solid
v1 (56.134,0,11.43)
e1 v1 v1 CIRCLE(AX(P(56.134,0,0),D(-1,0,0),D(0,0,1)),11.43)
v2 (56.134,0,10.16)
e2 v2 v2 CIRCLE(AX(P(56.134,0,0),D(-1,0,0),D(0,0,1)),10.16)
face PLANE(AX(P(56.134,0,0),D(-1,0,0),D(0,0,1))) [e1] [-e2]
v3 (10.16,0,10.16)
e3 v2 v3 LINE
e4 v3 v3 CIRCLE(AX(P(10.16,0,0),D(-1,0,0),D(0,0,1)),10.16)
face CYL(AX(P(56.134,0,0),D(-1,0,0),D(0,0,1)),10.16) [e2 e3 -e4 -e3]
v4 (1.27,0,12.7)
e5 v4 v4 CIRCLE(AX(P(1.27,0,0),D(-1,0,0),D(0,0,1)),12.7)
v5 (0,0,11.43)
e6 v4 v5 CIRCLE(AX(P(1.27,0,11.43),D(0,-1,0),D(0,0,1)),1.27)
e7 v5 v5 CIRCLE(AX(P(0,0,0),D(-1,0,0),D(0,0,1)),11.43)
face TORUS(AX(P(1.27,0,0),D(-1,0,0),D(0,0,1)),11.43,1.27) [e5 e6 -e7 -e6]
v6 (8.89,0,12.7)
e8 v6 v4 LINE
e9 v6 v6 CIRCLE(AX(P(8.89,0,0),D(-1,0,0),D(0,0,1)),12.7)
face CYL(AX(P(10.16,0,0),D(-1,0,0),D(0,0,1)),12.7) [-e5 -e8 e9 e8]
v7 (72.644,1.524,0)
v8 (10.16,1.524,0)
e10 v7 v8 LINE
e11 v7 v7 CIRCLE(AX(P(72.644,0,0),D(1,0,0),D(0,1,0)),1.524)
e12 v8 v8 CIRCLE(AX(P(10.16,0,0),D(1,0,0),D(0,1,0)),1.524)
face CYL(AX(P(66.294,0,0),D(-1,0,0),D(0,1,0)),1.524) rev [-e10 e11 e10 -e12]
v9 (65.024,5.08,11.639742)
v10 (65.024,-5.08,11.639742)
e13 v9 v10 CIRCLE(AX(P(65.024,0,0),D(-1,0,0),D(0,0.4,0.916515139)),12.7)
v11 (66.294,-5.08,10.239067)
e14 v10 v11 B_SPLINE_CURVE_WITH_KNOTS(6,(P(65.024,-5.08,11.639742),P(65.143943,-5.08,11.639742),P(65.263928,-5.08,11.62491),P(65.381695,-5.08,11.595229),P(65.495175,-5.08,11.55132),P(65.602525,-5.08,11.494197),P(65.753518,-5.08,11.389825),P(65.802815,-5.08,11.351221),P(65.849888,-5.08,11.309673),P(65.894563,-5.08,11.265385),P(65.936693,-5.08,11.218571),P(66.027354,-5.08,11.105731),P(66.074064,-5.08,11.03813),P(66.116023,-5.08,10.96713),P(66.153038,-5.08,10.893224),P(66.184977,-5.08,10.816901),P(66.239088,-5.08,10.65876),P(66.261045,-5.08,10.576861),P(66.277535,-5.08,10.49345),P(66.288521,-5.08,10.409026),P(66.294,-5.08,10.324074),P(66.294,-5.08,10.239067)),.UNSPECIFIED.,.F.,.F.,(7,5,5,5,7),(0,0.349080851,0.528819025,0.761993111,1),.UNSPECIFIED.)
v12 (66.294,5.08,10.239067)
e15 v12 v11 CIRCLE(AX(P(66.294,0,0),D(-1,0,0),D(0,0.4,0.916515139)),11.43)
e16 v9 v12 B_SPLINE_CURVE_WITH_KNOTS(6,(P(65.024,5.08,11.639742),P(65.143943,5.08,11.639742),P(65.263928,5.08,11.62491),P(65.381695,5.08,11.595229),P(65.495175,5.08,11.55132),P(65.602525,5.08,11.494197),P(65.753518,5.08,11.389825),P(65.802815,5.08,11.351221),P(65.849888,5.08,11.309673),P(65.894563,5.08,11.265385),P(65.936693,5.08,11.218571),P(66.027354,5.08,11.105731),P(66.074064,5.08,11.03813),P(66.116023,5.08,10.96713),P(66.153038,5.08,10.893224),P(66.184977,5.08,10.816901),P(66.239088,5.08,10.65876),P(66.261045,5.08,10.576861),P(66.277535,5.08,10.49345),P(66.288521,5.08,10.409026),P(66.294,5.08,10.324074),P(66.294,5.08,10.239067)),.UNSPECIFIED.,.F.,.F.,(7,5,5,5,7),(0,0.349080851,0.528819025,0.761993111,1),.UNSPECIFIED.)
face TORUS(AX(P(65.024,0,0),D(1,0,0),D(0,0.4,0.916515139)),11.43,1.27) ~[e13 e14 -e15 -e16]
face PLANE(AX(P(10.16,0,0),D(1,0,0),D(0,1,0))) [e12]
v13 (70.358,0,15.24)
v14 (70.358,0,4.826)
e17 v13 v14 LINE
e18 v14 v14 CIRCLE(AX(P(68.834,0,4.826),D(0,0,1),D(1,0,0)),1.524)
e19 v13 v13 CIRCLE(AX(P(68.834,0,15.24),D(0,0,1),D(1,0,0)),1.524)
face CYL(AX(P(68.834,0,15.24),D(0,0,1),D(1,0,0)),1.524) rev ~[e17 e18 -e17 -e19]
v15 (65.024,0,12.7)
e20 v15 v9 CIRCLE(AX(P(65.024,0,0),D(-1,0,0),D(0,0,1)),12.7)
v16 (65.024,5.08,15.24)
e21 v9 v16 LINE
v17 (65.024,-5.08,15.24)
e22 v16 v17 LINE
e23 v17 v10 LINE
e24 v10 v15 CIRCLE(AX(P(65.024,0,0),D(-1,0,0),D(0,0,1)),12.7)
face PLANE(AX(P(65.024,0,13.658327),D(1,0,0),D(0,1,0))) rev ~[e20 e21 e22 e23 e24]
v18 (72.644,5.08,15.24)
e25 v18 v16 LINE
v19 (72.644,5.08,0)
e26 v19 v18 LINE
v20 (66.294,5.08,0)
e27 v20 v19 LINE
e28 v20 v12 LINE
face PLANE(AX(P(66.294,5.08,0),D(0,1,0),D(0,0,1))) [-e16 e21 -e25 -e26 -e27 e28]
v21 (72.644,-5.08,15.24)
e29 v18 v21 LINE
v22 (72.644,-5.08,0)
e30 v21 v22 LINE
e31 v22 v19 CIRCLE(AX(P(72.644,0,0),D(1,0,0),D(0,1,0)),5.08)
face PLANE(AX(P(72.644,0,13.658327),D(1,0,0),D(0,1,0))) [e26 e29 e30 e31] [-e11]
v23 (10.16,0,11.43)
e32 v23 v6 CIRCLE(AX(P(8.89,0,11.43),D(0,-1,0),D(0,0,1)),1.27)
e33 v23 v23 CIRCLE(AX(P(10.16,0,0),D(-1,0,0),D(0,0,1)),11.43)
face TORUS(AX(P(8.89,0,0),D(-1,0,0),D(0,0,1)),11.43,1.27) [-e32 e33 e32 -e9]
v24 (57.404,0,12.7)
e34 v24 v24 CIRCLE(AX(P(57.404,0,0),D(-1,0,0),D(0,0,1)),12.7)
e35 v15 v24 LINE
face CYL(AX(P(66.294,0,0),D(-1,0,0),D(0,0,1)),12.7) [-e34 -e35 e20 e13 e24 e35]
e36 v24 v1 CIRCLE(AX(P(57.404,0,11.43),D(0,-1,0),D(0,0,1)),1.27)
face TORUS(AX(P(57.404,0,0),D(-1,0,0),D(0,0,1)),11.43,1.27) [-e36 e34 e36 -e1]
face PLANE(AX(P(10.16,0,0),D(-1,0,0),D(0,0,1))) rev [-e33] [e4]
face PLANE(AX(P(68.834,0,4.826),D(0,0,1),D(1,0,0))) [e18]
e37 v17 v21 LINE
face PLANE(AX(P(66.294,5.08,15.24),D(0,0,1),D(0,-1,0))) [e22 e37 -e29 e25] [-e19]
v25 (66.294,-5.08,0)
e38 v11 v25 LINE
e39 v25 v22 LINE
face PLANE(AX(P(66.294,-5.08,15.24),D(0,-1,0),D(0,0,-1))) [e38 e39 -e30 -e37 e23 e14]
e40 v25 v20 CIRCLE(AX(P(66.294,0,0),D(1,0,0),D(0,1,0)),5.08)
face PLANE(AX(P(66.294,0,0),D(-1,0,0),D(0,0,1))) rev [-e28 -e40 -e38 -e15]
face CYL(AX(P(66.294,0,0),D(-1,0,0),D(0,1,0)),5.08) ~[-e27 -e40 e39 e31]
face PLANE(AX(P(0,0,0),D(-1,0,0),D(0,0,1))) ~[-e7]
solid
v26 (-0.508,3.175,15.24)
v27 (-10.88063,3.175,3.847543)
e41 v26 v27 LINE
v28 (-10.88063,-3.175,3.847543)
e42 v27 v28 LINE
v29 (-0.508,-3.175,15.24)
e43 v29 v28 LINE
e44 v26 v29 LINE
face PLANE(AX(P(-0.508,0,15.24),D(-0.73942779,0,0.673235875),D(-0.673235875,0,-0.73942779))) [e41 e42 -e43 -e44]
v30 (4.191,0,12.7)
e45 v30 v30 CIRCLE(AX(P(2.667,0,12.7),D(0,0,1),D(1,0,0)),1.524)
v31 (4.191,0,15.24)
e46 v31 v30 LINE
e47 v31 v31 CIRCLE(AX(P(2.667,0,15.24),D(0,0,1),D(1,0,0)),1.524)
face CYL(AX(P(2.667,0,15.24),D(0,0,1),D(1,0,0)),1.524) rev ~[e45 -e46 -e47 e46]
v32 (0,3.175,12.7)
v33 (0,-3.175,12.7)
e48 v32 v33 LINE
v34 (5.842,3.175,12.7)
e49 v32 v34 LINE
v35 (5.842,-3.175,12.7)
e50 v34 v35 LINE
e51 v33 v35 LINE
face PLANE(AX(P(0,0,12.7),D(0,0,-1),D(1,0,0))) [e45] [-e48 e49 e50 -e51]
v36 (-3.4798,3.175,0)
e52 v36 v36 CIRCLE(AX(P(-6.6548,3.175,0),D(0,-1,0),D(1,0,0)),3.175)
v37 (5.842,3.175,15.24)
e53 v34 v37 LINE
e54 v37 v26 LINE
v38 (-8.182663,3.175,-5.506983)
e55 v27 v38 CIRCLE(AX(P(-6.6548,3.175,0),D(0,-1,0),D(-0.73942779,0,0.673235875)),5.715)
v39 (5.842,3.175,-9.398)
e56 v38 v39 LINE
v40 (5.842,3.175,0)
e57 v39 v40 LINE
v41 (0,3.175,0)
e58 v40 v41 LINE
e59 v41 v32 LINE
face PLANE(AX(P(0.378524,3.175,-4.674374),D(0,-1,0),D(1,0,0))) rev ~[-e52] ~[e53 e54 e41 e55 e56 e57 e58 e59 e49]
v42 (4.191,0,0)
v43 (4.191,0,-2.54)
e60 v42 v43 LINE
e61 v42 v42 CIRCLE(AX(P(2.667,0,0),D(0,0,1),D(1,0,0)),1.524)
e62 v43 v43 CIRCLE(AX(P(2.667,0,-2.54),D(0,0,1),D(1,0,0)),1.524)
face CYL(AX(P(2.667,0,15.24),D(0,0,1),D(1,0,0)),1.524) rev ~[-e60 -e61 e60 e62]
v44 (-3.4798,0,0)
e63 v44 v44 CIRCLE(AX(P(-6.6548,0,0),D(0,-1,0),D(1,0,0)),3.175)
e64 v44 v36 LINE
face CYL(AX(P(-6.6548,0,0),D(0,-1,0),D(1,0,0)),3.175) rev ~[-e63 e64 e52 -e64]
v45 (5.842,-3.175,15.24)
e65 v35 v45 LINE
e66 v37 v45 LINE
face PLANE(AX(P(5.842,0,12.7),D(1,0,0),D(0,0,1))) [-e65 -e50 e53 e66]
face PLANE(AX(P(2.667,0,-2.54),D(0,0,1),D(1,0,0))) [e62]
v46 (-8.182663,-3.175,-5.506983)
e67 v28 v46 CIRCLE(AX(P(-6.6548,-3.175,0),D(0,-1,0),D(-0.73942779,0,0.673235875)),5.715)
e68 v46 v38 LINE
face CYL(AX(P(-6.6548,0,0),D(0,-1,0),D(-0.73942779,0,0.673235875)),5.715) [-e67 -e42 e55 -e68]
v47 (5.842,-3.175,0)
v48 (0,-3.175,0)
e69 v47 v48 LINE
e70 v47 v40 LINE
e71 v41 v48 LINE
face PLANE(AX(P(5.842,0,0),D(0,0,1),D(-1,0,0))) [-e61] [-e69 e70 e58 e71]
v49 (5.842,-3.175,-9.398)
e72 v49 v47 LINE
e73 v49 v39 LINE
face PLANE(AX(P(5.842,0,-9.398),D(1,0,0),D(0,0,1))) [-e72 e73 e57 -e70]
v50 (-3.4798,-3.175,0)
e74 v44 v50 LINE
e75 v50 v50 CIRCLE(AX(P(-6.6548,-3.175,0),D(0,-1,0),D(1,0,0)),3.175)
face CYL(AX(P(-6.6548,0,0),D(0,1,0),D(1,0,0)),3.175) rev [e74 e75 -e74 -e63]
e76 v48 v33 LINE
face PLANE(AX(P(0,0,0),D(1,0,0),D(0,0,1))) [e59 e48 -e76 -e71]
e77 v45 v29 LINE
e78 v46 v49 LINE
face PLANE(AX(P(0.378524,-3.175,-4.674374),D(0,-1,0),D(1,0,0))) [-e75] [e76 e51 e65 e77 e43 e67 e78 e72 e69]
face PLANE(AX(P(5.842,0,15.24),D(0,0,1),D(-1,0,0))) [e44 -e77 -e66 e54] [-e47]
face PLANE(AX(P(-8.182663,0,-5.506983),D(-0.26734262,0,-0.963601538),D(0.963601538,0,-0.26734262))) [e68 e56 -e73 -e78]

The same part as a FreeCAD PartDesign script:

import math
import FreeCAD as App
import Part
import Sketcher
Q = App.Units.Quantity


def edges_at(feature, points):
    """Names of the edges that pass closest to the given points."""
    edges = feature.Shape.Edges
    near = lambda p: min(range(len(edges)), key=lambda i: edges[i].distToShape(Part.Vertex(*p))[0])
    return sorted({f"Edge{near(p) + 1}" for p in points})


def add_polygon(sketch, points):
    """Adds a closed chain of lines whose ends are joined by coincident constraints."""
    first, n = sketch.GeometryCount, len(points)
    for a, b in zip(points, points[1:] + points[:1]):
        sketch.addGeometry(Part.LineSegment(App.Vector(*a, 0), App.Vector(*b, 0)), False)
    for i in range(n):
        sketch.addConstraint(Sketcher.Constraint("Coincident", first + i, 2, first + (i + 1) % n, 1))

doc = App.newDocument("Part")
params = doc.addObject("Spreadsheet::Sheet", "Params")
for row, (alias, value) in enumerate([
    ("sketch1_width", "0.4 in"),
    ("sketch1_height", "0.5 in"),
    ("sketch1_height2", "0.1 in"),
    ("sketch1_width2", "1.81 in"),
    ("revolution_angle", "360 deg"),
    ("sketch2_radius", "0.2 in"),
    ("sketch2_diameter", "0.12 in"),
    ("sketch2_height", "0.6 in"),
    ("pad1_length", "0.25 in"),
    ("pad1_length2", "0.05 in"),
    ("sketch3_diameter", "0.12 in"),
    ("pocket1_length", "2.21 in"),
    ("sketch4_diameter", "0.12 in"),
    ("pocket2_length", "0.41 in"),
    ("fillet_radius", "0.05 in"),
    ("sketch5_diameter", "0.25 in"),
    ("sketch5_height", "0.5 in"),
    ("sketch5_height2", "0.1 in"),
    ("sketch5_radius", "0.225 in"),
    ("sketch5_width", "0.23 in"),
    ("pad2_length", "0.125 in"),
    ("pad2_length2", "0.125 in"),
    ("sketch6_diameter", "0.12 in"),
    ("pocket3_length", "0.7 in"),
], start=1):
    params.set(f"A{row}", alias)
    params.set(f"B{row}", "=" + value)
    params.setAlias(f"B{row}", alias)

body = doc.addObject("PartDesign::Body", "Body")

sketch1 = doc.addObject("Sketcher::SketchObject", "Sketch")
body.addObject(sketch1)
sketch1.AttachmentSupport = (doc.XZ_Plane, [""])
sketch1.MapMode = "FlatFace"
add_polygon(sketch1, [(66.294, 0), (66.294, 12.7), (56.134, 12.7), (56.134, 10.16), (10.16, 10.16), (10.16, 12.7), (0, 12.7), (0, 0)])
sketch1.addConstraint([
    Sketcher.Constraint("Vertical", 0),
    Sketcher.Constraint("Horizontal", 1),
    Sketcher.Constraint("Vertical", 2),
    Sketcher.Constraint("Horizontal", 3),
    Sketcher.Constraint("Vertical", 4),
    Sketcher.Constraint("Horizontal", 5),
    Sketcher.Constraint("Vertical", 6),
    Sketcher.Constraint("Horizontal", 7),
    Sketcher.Constraint("Coincident", 6, 2, -1, 1),
    Sketcher.Constraint("Horizontal", 1, 2, 4, 2),
    Sketcher.Constraint("Equal", 1, 5),
    Sketcher.Constraint("DistanceX", 1, 2, 1, 1, Q("0.4 in")),
    Sketcher.Constraint("DistanceY", 0, 1, 0, 2, Q("0.5 in")),
    Sketcher.Constraint("DistanceY", 2, 2, 2, 1, Q("0.1 in")),
    Sketcher.Constraint("DistanceX", 3, 2, 3, 1, Q("1.81 in")),
])
sketch1.setExpression("Constraints[19]", "Params.sketch1_width")
sketch1.setExpression("Constraints[20]", "Params.sketch1_height")
sketch1.setExpression("Constraints[21]", "Params.sketch1_height2")
sketch1.setExpression("Constraints[22]", "Params.sketch1_width2")
revolution = doc.addObject("PartDesign::Revolution", "Revolution")
body.addObject(revolution)
revolution.Profile = sketch1
revolution.ReferenceAxis = (sketch1, ["H_Axis"])
revolution.setExpression("Angle", "Params.revolution_angle")

sketch2 = doc.addObject("Sketcher::SketchObject", "Sketch001")
body.addObject(sketch2)
sketch2.AttachmentSupport = (doc.YZ_Plane, [""])
sketch2.MapMode = "FlatFace"
sketch2.AttachmentOffset = App.Placement(App.Vector(0, 0, 2.61 * 25.4), App.Rotation())
sketch2.addGeometry([
    Part.LineSegment(App.Vector(5.08, 15.24, 0), App.Vector(-5.08, 15.24, 0)),
    Part.LineSegment(App.Vector(-5.08, 15.24, 0), App.Vector(-5.08, 0, 0)),
    Part.ArcOfCircle(Part.Circle(App.Vector(0, 0, 0), App.Vector(0, 0, 1), 5.08), math.radians(180), math.radians(360)),
    Part.LineSegment(App.Vector(5.08, 0, 0), App.Vector(5.08, 15.24, 0)),
    Part.Circle(App.Vector(0, 0, 0), App.Vector(0, 0, 1), 1.524),
], False)
sketch2.addConstraint([
    Sketcher.Constraint("Coincident", 0, 2, 1, 1),
    Sketcher.Constraint("Tangent", 1, 2, 2, 1),
    Sketcher.Constraint("Tangent", 2, 2, 3, 1),
    Sketcher.Constraint("Coincident", 3, 2, 0, 1),
    Sketcher.Constraint("Horizontal", 0),
    Sketcher.Constraint("Vertical", 1),
    Sketcher.Constraint("Vertical", 3),
    Sketcher.Constraint("Coincident", 2, 3, -1, 1),
    Sketcher.Constraint("Coincident", 4, 3, -1, 1),
    Sketcher.Constraint("Radius", 2, Q("0.2 in")),
    Sketcher.Constraint("Diameter", 4, Q("0.12 in")),
    Sketcher.Constraint("DistanceY", 1, 2, 1, 1, Q("0.6 in")),
])
sketch2.setExpression("Constraints[9]", "Params.sketch2_radius")
sketch2.setExpression("Constraints[10]", "Params.sketch2_diameter")
sketch2.setExpression("Constraints[11]", "Params.sketch2_height")
pad1 = doc.addObject("PartDesign::Pad", "Pad")
body.addObject(pad1)
pad1.Profile = sketch2
pad1.Type = "TwoLengths"
pad1.setExpression("Length", "Params.pad1_length")
pad1.setExpression("Length2", "Params.pad1_length2")

sketch3 = doc.addObject("Sketcher::SketchObject", "Sketch002")
body.addObject(sketch3)
sketch3.AttachmentSupport = (doc.YZ_Plane, [""])
sketch3.MapMode = "FlatFace"
sketch3.AttachmentOffset = App.Placement(App.Vector(0, 0, 2.61 * 25.4), App.Rotation())
sketch3.addGeometry(Part.Circle(App.Vector(0, 0, 0), App.Vector(0, 0, 1), 1.524), False)
sketch3.addConstraint([
    Sketcher.Constraint("Coincident", 0, 3, -1, 1),
    Sketcher.Constraint("Diameter", 0, Q("0.12 in")),
])
sketch3.setExpression("Constraints[1]", "Params.sketch3_diameter")
pocket1 = doc.addObject("PartDesign::Pocket", "Pocket")
body.addObject(pocket1)
pocket1.Profile = sketch3
pocket1.setExpression("Length", "Params.pocket1_length")

sketch4 = doc.addObject("Sketcher::SketchObject", "Sketch003")
body.addObject(sketch4)
sketch4.AttachmentSupport = (doc.XY_Plane, [""])
sketch4.MapMode = "FlatFace"
sketch4.AttachmentOffset = App.Placement(App.Vector(0, 0, 0.6 * 25.4), App.Rotation())
sketch4.addGeometry(Part.Circle(App.Vector(68.834, 0, 0), App.Vector(0, 0, 1), 1.524), False)
sketch4.addConstraint([
    Sketcher.Constraint("PointOnObject", 0, 3, -1),
    Sketcher.Constraint("Diameter", 0, Q("0.12 in")),
    Sketcher.Constraint("DistanceX", -1, 1, 0, 3, Q("2.71 in")),
])
sketch4.setExpression("Constraints[1]", "Params.sketch4_diameter")
pocket2 = doc.addObject("PartDesign::Pocket", "Pocket001")
body.addObject(pocket2)
pocket2.Profile = sketch4
pocket2.setExpression("Length", "Params.pocket2_length")
doc.recompute()

fillet = doc.addObject("PartDesign::Fillet", "Fillet")
body.addObject(fillet)
fillet.Base = (pocket2, edges_at(pocket2, [
    (0, 0, -12.7),
    (10.16, 0, -12.7),
    (56.134, 0, -12.7),
    (66.294, 0, -12.7),
]))
fillet.setExpression("Radius", "Params.fillet_radius")
body2 = doc.addObject("PartDesign::Body", "Body001")

sketch5 = doc.addObject("Sketcher::SketchObject", "Sketch004")
body2.addObject(sketch5)
sketch5.AttachmentSupport = (doc.getObject("XZ_Plane001"), [""])
sketch5.MapMode = "FlatFace"
sketch5.addGeometry([
    Part.LineSegment(App.Vector(5.842, 0, 0), App.Vector(0, 0, 0)),
    Part.LineSegment(App.Vector(0, 0, 0), App.Vector(0, 12.7, 0)),
    Part.LineSegment(App.Vector(0, 12.7, 0), App.Vector(5.842, 12.7, 0)),
    Part.LineSegment(App.Vector(5.842, 12.7, 0), App.Vector(5.842, 15.24, 0)),
    Part.LineSegment(App.Vector(5.842, 15.24, 0), App.Vector(-0.508, 15.24, 0)),
    Part.LineSegment(App.Vector(-0.508, 15.24, 0), App.Vector(-10.88063, 3.847543, 0)),
    Part.ArcOfCircle(Part.Circle(App.Vector(-6.6548, 0, 0), App.Vector(0, 0, 1), 5.715), math.radians(137.682695), math.radians(254.493802)),
    Part.LineSegment(App.Vector(-8.182663, -5.506983, 0), App.Vector(5.842, -9.398, 0)),
    Part.LineSegment(App.Vector(5.842, -9.398, 0), App.Vector(5.842, 0, 0)),
    Part.Circle(App.Vector(-6.6548, 0, 0), App.Vector(0, 0, 1), 3.175),
], False)
sketch5.addConstraint([
    Sketcher.Constraint("Coincident", 0, 2, 1, 1),
    Sketcher.Constraint("Coincident", 1, 2, 2, 1),
    Sketcher.Constraint("Coincident", 2, 2, 3, 1),
    Sketcher.Constraint("Coincident", 3, 2, 4, 1),
    Sketcher.Constraint("Coincident", 4, 2, 5, 1),
    Sketcher.Constraint("Tangent", 5, 2, 6, 1),
    Sketcher.Constraint("Tangent", 6, 2, 7, 1),
    Sketcher.Constraint("Coincident", 7, 2, 8, 1),
    Sketcher.Constraint("Coincident", 8, 2, 0, 1),
    Sketcher.Constraint("Horizontal", 0),
    Sketcher.Constraint("Vertical", 1),
    Sketcher.Constraint("Horizontal", 2),
    Sketcher.Constraint("Vertical", 3),
    Sketcher.Constraint("Horizontal", 4),
    Sketcher.Constraint("Vertical", 8),
    Sketcher.Constraint("Coincident", 0, 2, -1, 1),
    Sketcher.Constraint("Coincident", 9, 3, 6, 3),
    Sketcher.Constraint("PointOnObject", 6, 3, -1),
    Sketcher.Constraint("Vertical", 3, 2, 7, 2),
    Sketcher.Constraint("Diameter", 9, Q("0.25 in")),
    Sketcher.Constraint("DistanceY", 1, 1, 1, 2, Q("0.5 in")),
    Sketcher.Constraint("DistanceY", 3, 1, 3, 2, Q("0.1 in")),
    Sketcher.Constraint("Radius", 6, Q("0.225 in")),
    Sketcher.Constraint("DistanceX", 0, 2, 0, 1, Q("0.23 in")),
    Sketcher.Constraint("DistanceX", 4, 2, 4, 1, Q("0.25 in")),
    Sketcher.Constraint("DistanceY", 8, 1, 8, 2, Q("0.37 in")),
    Sketcher.Constraint("DistanceX", 6, 3, -1, 1, Q("0.262 in")),
])
sketch5.setExpression("Constraints[19]", "Params.sketch5_diameter")
sketch5.setExpression("Constraints[20]", "Params.sketch5_height")
sketch5.setExpression("Constraints[21]", "Params.sketch5_height2")
sketch5.setExpression("Constraints[22]", "Params.sketch5_radius")
sketch5.setExpression("Constraints[23]", "Params.sketch5_width")
pad2 = doc.addObject("PartDesign::Pad", "Pad001")
body2.addObject(pad2)
pad2.Profile = sketch5
pad2.Type = "TwoLengths"
pad2.setExpression("Length", "Params.pad2_length")
pad2.setExpression("Length2", "Params.pad2_length2")

sketch6 = doc.addObject("Sketcher::SketchObject", "Sketch005")
body2.addObject(sketch6)
sketch6.AttachmentSupport = (doc.getObject("XY_Plane001"), [""])
sketch6.MapMode = "FlatFace"
sketch6.AttachmentOffset = App.Placement(App.Vector(0, 0, 0.6 * 25.4), App.Rotation())
sketch6.addGeometry(Part.Circle(App.Vector(2.667, 0, 0), App.Vector(0, 0, 1), 1.524), False)
sketch6.addConstraint([
    Sketcher.Constraint("PointOnObject", 0, 3, -1),
    Sketcher.Constraint("Diameter", 0, Q("0.12 in")),
    Sketcher.Constraint("DistanceX", -1, 1, 0, 3, Q("0.105 in")),
])
sketch6.setExpression("Constraints[1]", "Params.sketch6_diameter")
pocket3 = doc.addObject("PartDesign::Pocket", "Pocket002")
body2.addObject(pocket3)
pocket3.Profile = sketch6
pocket3.setExpression("Length", "Params.pocket3_length")

doc.recompute()
